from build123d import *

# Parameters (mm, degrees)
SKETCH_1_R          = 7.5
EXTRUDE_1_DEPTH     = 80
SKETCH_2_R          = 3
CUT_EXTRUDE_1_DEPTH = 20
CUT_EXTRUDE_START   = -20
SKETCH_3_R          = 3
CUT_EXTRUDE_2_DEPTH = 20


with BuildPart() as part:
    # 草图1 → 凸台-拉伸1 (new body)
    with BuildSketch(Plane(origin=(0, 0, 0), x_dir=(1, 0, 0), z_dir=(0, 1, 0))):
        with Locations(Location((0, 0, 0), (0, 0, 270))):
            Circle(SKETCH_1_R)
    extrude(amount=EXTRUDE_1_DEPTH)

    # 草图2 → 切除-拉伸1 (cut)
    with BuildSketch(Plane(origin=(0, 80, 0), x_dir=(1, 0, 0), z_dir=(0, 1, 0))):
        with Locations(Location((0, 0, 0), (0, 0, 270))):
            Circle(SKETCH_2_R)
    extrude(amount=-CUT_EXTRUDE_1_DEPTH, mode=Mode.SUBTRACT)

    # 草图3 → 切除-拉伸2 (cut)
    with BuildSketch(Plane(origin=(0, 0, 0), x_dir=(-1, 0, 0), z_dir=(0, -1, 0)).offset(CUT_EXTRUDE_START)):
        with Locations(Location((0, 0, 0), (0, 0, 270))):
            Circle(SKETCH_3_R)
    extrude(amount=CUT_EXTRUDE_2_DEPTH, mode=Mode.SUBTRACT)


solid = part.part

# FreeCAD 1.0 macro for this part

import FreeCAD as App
import Part
import Sketcher

V = App.Vector

doc = App.newDocument("Part")
body = doc.addObject("PartDesign::Body", "Body")

# Sketch on XZ plane
sketch1 = body.newObject("Sketcher::SketchObject", "Sketch")
sketch1.AttachmentSupport = (doc.getObject("XZ_Plane"), [""])
sketch1.MapMode = "FlatFace"
sketch1.addGeometry(Part.Circle(V(0, 0, 0), V(0, 0, 1), 8), False)
sketch1.addConstraint([
    Sketcher.Constraint("Coincident", 0, 3, -1, 1),
    Sketcher.Constraint("Diameter", 0, 15.0),
])
pad1 = body.newObject("PartDesign::Pad", "Pad")
pad1.Profile = sketch1
pad1.Length = 80
pad1.Reversed = True

# Sketch on XZ plane
sketch2 = body.newObject("Sketcher::SketchObject", "Sketch001")
sketch2.AttachmentSupport = (doc.getObject("XZ_Plane"), [""])
sketch2.MapMode = "FlatFace"
sketch2.AttachmentOffset = App.Placement(V(0, 0, -80), App.Rotation())
sketch2.addGeometry(Part.Circle(V(0, 0, 0), V(0, 0, 1), 3), False)
sketch2.addConstraint([
    Sketcher.Constraint("Coincident", 0, 3, -1, 1),
    Sketcher.Constraint("Diameter", 0, 6.0),
])
pocket1 = body.newObject("PartDesign::Pocket", "Pocket")
pocket1.Profile = sketch2
pocket1.Length = 20
pocket1.Reversed = True

# Sketch on XZ plane
sketch3 = body.newObject("Sketcher::SketchObject", "Sketch002")
sketch3.AttachmentSupport = (doc.getObject("XZ_Plane"), [""])
sketch3.MapMode = "FlatFace"
sketch3.AttachmentOffset = App.Placement(V(0, 0, -20), App.Rotation())
sketch3.addGeometry(Part.Circle(V(0, 0, 0), V(0, 0, 1), 3), False)
sketch3.addConstraint([
    Sketcher.Constraint("Coincident", 0, 3, -1, 1),
    Sketcher.Constraint("Diameter", 0, 6.0),
])
pocket2 = body.newObject("PartDesign::Pocket", "Pocket001")
pocket2.Profile = sketch3
pocket2.Length = 20
pocket2.Reversed = True

doc.recompute()
